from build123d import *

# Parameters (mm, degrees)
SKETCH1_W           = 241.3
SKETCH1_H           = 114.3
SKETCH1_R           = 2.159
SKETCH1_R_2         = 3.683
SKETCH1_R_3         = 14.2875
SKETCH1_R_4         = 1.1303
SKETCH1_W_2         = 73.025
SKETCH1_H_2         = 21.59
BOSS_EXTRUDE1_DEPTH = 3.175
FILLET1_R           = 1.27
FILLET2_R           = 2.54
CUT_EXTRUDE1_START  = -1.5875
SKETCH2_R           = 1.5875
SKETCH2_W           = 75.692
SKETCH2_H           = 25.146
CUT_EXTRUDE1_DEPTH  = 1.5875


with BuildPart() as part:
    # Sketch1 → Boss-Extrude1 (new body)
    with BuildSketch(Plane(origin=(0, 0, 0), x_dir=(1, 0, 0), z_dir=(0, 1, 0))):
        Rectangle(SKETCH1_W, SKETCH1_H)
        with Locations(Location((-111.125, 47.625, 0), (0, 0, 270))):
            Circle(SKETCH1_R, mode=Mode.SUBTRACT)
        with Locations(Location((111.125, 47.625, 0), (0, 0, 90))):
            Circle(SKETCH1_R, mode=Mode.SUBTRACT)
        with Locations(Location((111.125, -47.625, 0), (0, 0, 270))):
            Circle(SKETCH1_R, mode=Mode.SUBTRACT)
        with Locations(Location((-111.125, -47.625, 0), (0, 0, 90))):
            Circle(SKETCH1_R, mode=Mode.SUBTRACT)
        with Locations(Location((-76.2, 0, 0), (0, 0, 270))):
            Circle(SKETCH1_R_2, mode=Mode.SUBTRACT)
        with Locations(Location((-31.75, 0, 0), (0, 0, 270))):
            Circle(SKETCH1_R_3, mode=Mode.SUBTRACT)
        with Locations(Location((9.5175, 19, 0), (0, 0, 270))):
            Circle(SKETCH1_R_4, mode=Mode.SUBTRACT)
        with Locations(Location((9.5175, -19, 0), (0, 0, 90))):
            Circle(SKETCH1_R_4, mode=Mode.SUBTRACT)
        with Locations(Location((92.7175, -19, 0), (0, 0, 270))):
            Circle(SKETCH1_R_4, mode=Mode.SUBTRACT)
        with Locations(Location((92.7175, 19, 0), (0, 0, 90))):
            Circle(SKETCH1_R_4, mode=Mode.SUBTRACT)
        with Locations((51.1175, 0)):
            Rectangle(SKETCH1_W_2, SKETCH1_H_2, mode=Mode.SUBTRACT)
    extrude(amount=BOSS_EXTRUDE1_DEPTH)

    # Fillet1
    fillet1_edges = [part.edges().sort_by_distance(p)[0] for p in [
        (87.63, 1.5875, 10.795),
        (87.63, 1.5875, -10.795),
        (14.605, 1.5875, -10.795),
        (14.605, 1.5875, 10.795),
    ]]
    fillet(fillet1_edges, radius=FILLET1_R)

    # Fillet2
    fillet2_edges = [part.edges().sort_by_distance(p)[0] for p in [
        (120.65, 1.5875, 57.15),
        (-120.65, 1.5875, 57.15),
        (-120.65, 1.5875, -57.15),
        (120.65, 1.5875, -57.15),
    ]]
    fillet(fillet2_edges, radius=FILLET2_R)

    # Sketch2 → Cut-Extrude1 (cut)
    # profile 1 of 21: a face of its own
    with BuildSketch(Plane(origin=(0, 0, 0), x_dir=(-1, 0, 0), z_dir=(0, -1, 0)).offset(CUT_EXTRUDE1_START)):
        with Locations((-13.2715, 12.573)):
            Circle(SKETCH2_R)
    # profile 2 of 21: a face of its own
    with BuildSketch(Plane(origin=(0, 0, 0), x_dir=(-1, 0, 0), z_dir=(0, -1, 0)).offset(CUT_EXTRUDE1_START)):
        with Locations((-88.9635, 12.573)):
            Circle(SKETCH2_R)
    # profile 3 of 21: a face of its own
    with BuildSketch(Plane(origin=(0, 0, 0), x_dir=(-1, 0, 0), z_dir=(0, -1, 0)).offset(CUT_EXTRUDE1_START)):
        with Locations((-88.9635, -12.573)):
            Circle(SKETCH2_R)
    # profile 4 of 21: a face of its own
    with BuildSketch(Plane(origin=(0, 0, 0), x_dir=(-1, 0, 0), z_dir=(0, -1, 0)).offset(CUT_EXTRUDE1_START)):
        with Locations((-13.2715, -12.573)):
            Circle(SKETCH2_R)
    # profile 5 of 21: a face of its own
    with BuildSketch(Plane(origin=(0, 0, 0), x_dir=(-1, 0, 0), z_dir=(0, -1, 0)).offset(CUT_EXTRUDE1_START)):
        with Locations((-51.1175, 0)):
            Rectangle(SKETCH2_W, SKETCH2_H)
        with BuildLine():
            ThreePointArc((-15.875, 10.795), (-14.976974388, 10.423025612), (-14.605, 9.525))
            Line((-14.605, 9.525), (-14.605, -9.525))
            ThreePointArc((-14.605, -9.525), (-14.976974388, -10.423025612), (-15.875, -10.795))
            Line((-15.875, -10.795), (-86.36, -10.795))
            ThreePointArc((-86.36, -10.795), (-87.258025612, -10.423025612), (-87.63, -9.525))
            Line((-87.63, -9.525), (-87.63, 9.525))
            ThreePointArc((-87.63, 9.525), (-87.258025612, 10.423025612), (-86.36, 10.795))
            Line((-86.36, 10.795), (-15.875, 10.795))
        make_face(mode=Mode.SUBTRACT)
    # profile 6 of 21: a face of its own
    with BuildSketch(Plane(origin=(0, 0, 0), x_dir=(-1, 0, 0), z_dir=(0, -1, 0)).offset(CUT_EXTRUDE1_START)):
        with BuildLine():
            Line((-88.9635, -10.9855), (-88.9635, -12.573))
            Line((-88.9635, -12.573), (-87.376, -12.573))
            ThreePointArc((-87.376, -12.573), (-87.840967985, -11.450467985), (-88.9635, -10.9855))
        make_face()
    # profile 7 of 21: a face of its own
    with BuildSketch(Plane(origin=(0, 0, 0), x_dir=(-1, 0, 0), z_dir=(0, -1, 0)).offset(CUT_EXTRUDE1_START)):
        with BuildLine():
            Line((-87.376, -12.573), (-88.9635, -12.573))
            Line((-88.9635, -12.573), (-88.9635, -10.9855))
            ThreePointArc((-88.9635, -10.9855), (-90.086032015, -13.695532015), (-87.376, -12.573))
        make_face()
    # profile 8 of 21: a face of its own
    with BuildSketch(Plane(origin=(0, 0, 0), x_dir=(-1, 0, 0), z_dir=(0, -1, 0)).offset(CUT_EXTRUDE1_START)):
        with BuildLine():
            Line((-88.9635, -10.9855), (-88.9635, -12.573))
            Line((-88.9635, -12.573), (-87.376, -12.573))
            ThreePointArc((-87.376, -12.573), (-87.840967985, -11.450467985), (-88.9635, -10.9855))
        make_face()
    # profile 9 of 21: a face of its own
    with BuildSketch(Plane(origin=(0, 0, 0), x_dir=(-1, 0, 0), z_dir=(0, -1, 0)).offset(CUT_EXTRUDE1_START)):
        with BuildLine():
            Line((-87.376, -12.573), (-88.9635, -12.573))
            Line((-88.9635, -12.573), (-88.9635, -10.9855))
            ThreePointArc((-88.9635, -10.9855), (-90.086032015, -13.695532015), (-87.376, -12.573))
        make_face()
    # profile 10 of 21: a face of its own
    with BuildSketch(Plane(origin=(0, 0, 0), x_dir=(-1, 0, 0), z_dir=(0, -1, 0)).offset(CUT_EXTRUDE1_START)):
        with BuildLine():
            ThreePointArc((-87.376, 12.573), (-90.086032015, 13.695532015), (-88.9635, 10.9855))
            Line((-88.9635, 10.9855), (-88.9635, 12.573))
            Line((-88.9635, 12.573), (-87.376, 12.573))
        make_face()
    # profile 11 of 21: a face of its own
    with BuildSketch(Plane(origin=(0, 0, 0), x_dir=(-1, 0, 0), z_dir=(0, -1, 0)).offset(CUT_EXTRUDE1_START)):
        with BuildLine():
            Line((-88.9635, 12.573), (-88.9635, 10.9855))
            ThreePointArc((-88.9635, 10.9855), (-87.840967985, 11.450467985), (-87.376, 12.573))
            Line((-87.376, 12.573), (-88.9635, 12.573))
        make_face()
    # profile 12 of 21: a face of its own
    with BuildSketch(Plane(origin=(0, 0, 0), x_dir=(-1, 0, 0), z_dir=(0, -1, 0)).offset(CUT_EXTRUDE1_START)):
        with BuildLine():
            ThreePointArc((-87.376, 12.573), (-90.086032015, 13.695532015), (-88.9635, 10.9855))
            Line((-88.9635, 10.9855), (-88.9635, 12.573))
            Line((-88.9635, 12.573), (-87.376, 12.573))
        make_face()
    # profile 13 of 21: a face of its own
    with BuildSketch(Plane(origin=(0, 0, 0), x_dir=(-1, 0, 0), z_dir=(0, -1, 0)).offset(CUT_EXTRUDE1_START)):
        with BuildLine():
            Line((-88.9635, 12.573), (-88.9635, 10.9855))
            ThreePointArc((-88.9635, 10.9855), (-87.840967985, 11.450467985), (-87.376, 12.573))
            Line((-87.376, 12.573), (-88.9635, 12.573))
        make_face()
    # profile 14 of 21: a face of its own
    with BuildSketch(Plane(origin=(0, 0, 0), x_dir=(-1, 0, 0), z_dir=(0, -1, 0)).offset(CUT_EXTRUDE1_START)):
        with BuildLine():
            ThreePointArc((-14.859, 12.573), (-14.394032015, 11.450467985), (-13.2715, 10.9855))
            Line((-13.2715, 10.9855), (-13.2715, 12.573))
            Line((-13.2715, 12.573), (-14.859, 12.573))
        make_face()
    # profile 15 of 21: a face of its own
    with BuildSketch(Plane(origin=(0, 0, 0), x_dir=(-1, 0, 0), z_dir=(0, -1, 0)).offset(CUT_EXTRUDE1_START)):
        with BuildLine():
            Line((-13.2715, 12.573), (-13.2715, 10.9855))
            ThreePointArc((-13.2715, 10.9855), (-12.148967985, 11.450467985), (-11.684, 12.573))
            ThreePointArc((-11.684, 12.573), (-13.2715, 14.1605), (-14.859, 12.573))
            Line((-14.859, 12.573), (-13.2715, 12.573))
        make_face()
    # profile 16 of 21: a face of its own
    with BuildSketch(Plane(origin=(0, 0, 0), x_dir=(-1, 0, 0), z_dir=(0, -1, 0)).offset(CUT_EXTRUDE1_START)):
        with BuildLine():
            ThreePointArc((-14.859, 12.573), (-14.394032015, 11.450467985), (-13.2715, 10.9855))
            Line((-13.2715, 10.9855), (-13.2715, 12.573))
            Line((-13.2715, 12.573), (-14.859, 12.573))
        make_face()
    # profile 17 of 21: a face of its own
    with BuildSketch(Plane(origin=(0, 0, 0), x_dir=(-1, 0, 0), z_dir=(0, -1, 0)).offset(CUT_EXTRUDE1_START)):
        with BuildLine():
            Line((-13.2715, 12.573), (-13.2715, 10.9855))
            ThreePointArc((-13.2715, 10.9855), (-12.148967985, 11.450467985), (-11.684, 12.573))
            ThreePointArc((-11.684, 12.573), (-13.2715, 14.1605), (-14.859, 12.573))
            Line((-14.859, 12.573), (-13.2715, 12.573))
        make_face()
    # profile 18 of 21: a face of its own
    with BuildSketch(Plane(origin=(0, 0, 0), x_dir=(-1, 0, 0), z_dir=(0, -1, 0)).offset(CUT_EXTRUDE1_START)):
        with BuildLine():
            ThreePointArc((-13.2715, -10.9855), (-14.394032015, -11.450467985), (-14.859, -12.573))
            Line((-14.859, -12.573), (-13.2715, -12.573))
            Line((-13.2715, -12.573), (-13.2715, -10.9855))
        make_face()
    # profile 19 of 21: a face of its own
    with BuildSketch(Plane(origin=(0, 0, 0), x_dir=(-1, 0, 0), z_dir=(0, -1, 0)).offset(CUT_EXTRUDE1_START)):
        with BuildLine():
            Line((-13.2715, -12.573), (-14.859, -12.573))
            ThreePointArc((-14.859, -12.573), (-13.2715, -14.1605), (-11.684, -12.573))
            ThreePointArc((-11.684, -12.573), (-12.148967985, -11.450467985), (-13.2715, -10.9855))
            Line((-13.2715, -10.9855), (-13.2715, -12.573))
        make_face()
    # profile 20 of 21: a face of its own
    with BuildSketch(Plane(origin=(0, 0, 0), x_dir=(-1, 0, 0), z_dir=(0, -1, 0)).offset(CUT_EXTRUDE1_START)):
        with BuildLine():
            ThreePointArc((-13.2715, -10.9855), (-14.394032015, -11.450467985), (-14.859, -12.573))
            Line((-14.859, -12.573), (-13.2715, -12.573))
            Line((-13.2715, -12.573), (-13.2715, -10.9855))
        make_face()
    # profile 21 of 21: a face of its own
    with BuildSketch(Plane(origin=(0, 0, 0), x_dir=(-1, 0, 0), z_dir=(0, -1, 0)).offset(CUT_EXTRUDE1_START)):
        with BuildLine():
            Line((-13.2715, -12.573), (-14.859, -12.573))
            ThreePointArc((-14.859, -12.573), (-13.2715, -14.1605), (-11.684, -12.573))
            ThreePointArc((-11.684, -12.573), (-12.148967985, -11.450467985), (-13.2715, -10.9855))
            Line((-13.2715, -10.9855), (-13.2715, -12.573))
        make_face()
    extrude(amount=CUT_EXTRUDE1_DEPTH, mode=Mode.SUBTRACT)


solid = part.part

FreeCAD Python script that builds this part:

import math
import FreeCAD as App
import Part
import Sketcher

V = App.Vector
Q = App.Units.Quantity


def edges_at(feature, points):
    """Names of the edges that pass closest to the given points."""
    edges = feature.Shape.Edges
    near = lambda p: min(range(len(edges)), key=lambda i: edges[i].distToShape(Part.Vertex(*p))[0])
    return sorted({f"Edge{near(p) + 1}" for p in points})


def add_polygon(sketch, points):
    """Adds a closed chain of lines whose ends are joined by coincident constraints."""
    first, n = sketch.GeometryCount, len(points)
    for a, b in zip(points, points[1:] + points[:1]):
        sketch.addGeometry(Part.LineSegment(App.Vector(*a, 0), App.Vector(*b, 0)), False)
    for i in range(n):
        sketch.addConstraint(Sketcher.Constraint("Coincident", first + i, 2, first + (i + 1) % n, 1))

doc = App.newDocument("Part")
body = doc.addObject("PartDesign::Body", "Body")

sketch1 = body.newObject("Sketcher::SketchObject", "Sketch")
sketch1.AttachmentSupport = (doc.getObject("XZ_Plane"), [""])
sketch1.MapMode = "FlatFace"
add_polygon(sketch1, [(-120.7, -57.1), (-120.7, 57.1), (120.7, 57.1), (120.7, -57.1)])
sketch1.addGeometry(Part.Circle(V(-111.1, 47.6, 0), V(0, 0, 1), 2.2), False)
sketch1.addGeometry(Part.Circle(V(111.1, 47.6, 0), V(0, 0, 1), 2.2), False)
sketch1.addGeometry(Part.Circle(V(9.5, 19, 0), V(0, 0, 1), 1.1), False)
sketch1.addGeometry(Part.Circle(V(92.7, 19, 0), V(0, 0, 1), 1.1), False)
sketch1.addGeometry(Part.Circle(V(-76.2, 0, 0), V(0, 0, 1), 3.7), False)
sketch1.addGeometry(Part.Circle(V(-31.8, 0, 0), V(0, 0, 1), 14.3), False)
sketch1.addGeometry(Part.Circle(V(-111.1, -47.6, 0), V(0, 0, 1), 2.2), False)
add_polygon(sketch1, [(87.6, 10.8), (14.6, 10.8), (14.6, -10.8), (87.6, -10.8)])
sketch1.addGeometry(Part.Circle(V(9.5, -19, 0), V(0, 0, 1), 1.1), False)
sketch1.addGeometry(Part.Circle(V(92.7, -19, 0), V(0, 0, 1), 1.1), False)
sketch1.addGeometry(Part.Circle(V(111.1, -47.6, 0), V(0, 0, 1), 2.2), False)
sketch1.addConstraint(Sketcher.Constraint("Vertical", 0))
sketch1.addConstraint(Sketcher.Constraint("Horizontal", 1))
sketch1.addConstraint(Sketcher.Constraint("Vertical", 2))
sketch1.addConstraint(Sketcher.Constraint("Horizontal", 3))
sketch1.addConstraint(Sketcher.Constraint("Horizontal", 11))
sketch1.addConstraint(Sketcher.Constraint("Vertical", 12))
sketch1.addConstraint(Sketcher.Constraint("Horizontal", 13))
sketch1.addConstraint(Sketcher.Constraint("Vertical", 14))
sketch1.addConstraint(Sketcher.Constraint("Equal", 4, 5))
sketch1.addConstraint(Sketcher.Constraint("Equal", 6, 7))
sketch1.addConstraint(Sketcher.Constraint("Equal", 5, 10))
sketch1.addConstraint(Sketcher.Constraint("Equal", 7, 15))
sketch1.addConstraint(Sketcher.Constraint("Equal", 15, 16))
sketch1.addConstraint(Sketcher.Constraint("Equal", 10, 17))
sketch1.addConstraint(Sketcher.Constraint("Symmetric", 5, 3, 10, 3, -1, 1))
sketch1.addConstraint(Sketcher.Constraint("Symmetric", 4, 3, 17, 3, -1, 1))
sketch1.addConstraint(Sketcher.Constraint("Symmetric", 0, 2, 2, 2, -1, 1))
sketch1.addConstraint(Sketcher.Constraint("Symmetric", 4, 3, 5, 3, -2))
sketch1.addConstraint(Sketcher.Constraint("Symmetric", 6, 3, 15, 3, -1))
sketch1.addConstraint(Sketcher.Constraint("Symmetric", 7, 3, 16, 3, -1))
sketch1.addConstraint(Sketcher.Constraint("PointOnObject", 8, 3, -1))
sketch1.addConstraint(Sketcher.Constraint("PointOnObject", 9, 3, -1))
sketch1.addConstraint(Sketcher.Constraint("Horizontal", 6, 3, 7, 3))
sketch1.addConstraint(Sketcher.Constraint("Diameter", 4, Q("0.17 in")))
sketch1.addConstraint(Sketcher.Constraint("Diameter", 8, Q("0.29 in")))
sketch1.addConstraint(Sketcher.Constraint("Diameter", 6, Q("0.089 in")))
sketch1.addConstraint(Sketcher.Constraint("Diameter", 9, Q("1.125 in")))
sketch1.addConstraint(Sketcher.Constraint("DistanceX", 1, 1, 1, 2, Q("9.5 in")))
sketch1.addConstraint(Sketcher.Constraint("DistanceY", 0, 1, 0, 2, Q("4.5 in")))
sketch1.addConstraint(Sketcher.Constraint("DistanceX", 8, 3, -1, 1, Q("3 in")))
sketch1.addConstraint(Sketcher.Constraint("DistanceY", 12, 2, 12, 1, Q("0.85 in")))
sketch1.addConstraint(Sketcher.Constraint("DistanceX", 0, 2, 9, 3, Q("3.5 in")))
sketch1.addConstraint(Sketcher.Constraint("DistanceX", 13, 2, 2, 2, Q("1.3 in")))
sketch1.addConstraint(Sketcher.Constraint("DistanceY", 13, 2, 5, 3, Q("2.3 in")))
sketch1.addConstraint(Sketcher.Constraint("DistanceX", 11, 2, 11, 1, Q("2.875 in")))
sketch1.addConstraint(Sketcher.Constraint("DistanceX", 4, 3, 5, 3, Q("8.75 in")))
sketch1.addConstraint(Sketcher.Constraint("DistanceY", 10, 3, 4, 3, Q("3.75 in")))
sketch1.addConstraint(Sketcher.Constraint("DistanceX", -1, 1, 6, 3, 9.5175))
sketch1.addConstraint(Sketcher.Constraint("DistanceY", -1, 1, 6, 3, 19.0))
sketch1.addConstraint(Sketcher.Constraint("DistanceX", -1, 1, 7, 3, 92.7175))
pad1 = body.newObject("PartDesign::Pad", "Pad")
pad1.Profile = sketch1
pad1.Length = Q("0.125 in")
pad1.Reversed = True
doc.recompute()

fillet = body.newObject("PartDesign::Fillet", "Fillet")
fillet.Base = (pad1, edges_at(pad1, [
    (87.63, 1.587, 10.795),
    (87.63, 1.587, -10.795),
    (14.605, 1.587, -10.795),
    (14.605, 1.587, 10.795),
]))
fillet.Radius = Q("0.05 in")
doc.recompute()

fillet2 = body.newObject("PartDesign::Fillet", "Fillet001")
fillet2.Base = (fillet, edges_at(fillet, [
    (120.65, 1.587, 57.15),
    (-120.65, 1.587, 57.15),
    (-120.65, 1.587, -57.15),
    (120.65, 1.587, -57.15),
]))
fillet2.Radius = Q("0.1 in")

sketch2 = body.newObject("Sketcher::SketchObject", "Sketch001")
sketch2.AttachmentSupport = (doc.getObject("XZ_Plane"), [""])
sketch2.MapMode = "FlatFace"
sketch2.AttachmentOffset = App.Placement(V(0, 0, -0.0625 * 25.4), App.Rotation())
sketch2.addGeometry(Part.ArcOfCircle(Part.Circle(V(13.3, -12.6, 0), V(0, 0, 1), 1.6), math.radians(90), math.radians(360)), False)
sketch2.addGeometry(Part.LineSegment(V(14.9, -12.6, 0), V(87.4, -12.6, 0)), False)
sketch2.addGeometry(Part.ArcOfCircle(Part.Circle(V(89, -12.6, 0), V(0, 0, 1), 1.6), math.radians(180), math.radians(450)), False)
sketch2.addGeometry(Part.LineSegment(V(89, -11, 0), V(89, 11, 0)), False)
sketch2.addGeometry(Part.ArcOfCircle(Part.Circle(V(89, 12.6, 0), V(0, 0, 1), 1.6), math.radians(-90), math.radians(180)), False)
sketch2.addGeometry(Part.LineSegment(V(87.4, 12.6, 0), V(14.9, 12.6, 0)), False)
sketch2.addGeometry(Part.ArcOfCircle(Part.Circle(V(13.3, 12.6, 0), V(0, 0, 1), 1.6), math.radians(0), math.radians(270)), False)
sketch2.addGeometry(Part.LineSegment(V(13.3, 11, 0), V(13.3, -11, 0)), False)
sketch2.addGeometry(Part.LineSegment(V(15.9, 10.8, 0), V(86.4, 10.8, 0)), False)
sketch2.addGeometry(Part.ArcOfCircle(Part.Circle(V(86.4, 9.5, 0), V(0, 0, 1), 1.3), math.radians(0), math.radians(90)), False)
sketch2.addGeometry(Part.LineSegment(V(87.6, 9.5, 0), V(87.6, -9.5, 0)), False)
sketch2.addGeometry(Part.ArcOfCircle(Part.Circle(V(86.4, -9.5, 0), V(0, 0, 1), 1.3), math.radians(-90), math.radians(0)), False)
sketch2.addGeometry(Part.LineSegment(V(86.4, -10.8, 0), V(15.9, -10.8, 0)), False)
sketch2.addGeometry(Part.ArcOfCircle(Part.Circle(V(15.9, -9.5, 0), V(0, 0, 1), 1.3), math.radians(180), math.radians(270)), False)
sketch2.addGeometry(Part.LineSegment(V(14.6, -9.5, 0), V(14.6, 9.5, 0)), False)
sketch2.addGeometry(Part.ArcOfCircle(Part.Circle(V(15.9, 9.5, 0), V(0, 0, 1), 1.3), math.radians(90), math.radians(180)), False)
sketch2.addConstraint(Sketcher.Constraint("Coincident", 0, 2, 1, 1))
sketch2.addConstraint(Sketcher.Constraint("Coincident", 1, 2, 2, 1))
sketch2.addConstraint(Sketcher.Constraint("Coincident", 2, 2, 3, 1))
sketch2.addConstraint(Sketcher.Constraint("Coincident", 3, 2, 4, 1))
sketch2.addConstraint(Sketcher.Constraint("Coincident", 4, 2, 5, 1))
sketch2.addConstraint(Sketcher.Constraint("Coincident", 5, 2, 6, 1))
sketch2.addConstraint(Sketcher.Constraint("Coincident", 6, 2, 7, 1))
sketch2.addConstraint(Sketcher.Constraint("Coincident", 7, 2, 0, 1))
sketch2.addConstraint(Sketcher.Constraint("Tangent", 8, 2, 9, 2))
sketch2.addConstraint(Sketcher.Constraint("Tangent", 9, 1, 10, 1))
sketch2.addConstraint(Sketcher.Constraint("Tangent", 10, 2, 11, 2))
sketch2.addConstraint(Sketcher.Constraint("Tangent", 11, 1, 12, 1))
sketch2.addConstraint(Sketcher.Constraint("Tangent", 12, 2, 13, 2))
sketch2.addConstraint(Sketcher.Constraint("Tangent", 13, 1, 14, 1))
sketch2.addConstraint(Sketcher.Constraint("Tangent", 14, 2, 15, 2))
sketch2.addConstraint(Sketcher.Constraint("Tangent", 15, 1, 8, 1))
sketch2.addConstraint(Sketcher.Constraint("Horizontal", 1))
sketch2.addConstraint(Sketcher.Constraint("Vertical", 3))
sketch2.addConstraint(Sketcher.Constraint("Horizontal", 5))
sketch2.addConstraint(Sketcher.Constraint("Vertical", 7))
sketch2.addConstraint(Sketcher.Constraint("Horizontal", 8))
sketch2.addConstraint(Sketcher.Constraint("Vertical", 10))
sketch2.addConstraint(Sketcher.Constraint("Horizontal", 12))
sketch2.addConstraint(Sketcher.Constraint("Vertical", 14))
sketch2.addConstraint(Sketcher.Constraint("Equal", 0, 2))
sketch2.addConstraint(Sketcher.Constraint("Equal", 2, 4))
sketch2.addConstraint(Sketcher.Constraint("Equal", 4, 6))
sketch2.addConstraint(Sketcher.Constraint("Equal", 9, 11))
sketch2.addConstraint(Sketcher.Constraint("Equal", 11, 13))
sketch2.addConstraint(Sketcher.Constraint("Equal", 13, 15))
sketch2.addConstraint(Sketcher.Constraint("Symmetric", 2, 3, 4, 3, -1))
sketch2.addConstraint(Sketcher.Constraint("Symmetric", 0, 3, 6, 3, -1))
sketch2.addConstraint(Sketcher.Constraint("Horizontal", 0, 3, 2, 3))
sketch2.addConstraint(Sketcher.Constraint("Horizontal", 2, 3, 0, 2))
sketch2.addConstraint(Sketcher.Constraint("Horizontal", 6, 3, 4, 2))
sketch2.addConstraint(Sketcher.Constraint("Vertical", 4, 3, 2, 2))
sketch2.addConstraint(Sketcher.Constraint("Vertical", 0, 3, 6, 2))
sketch2.addConstraint(Sketcher.Constraint("Radius", 9, Q("0.05 in")))
sketch2.addConstraint(Sketcher.Constraint("Radius", 0, Q("0.0625 in")))
sketch2.addConstraint(Sketcher.Constraint("DistanceY", 10, 2, 10, 1, Q("0.75 in")))
sketch2.addConstraint(Sketcher.Constraint("DistanceX", -1, 1, 9, 3, Q("3.4 in")))
sketch2.addConstraint(Sketcher.Constraint("DistanceX", 1, 1, 1, 2, Q("2.855 in")))
sketch2.addConstraint(Sketcher.Constraint("DistanceX", 8, 1, 8, 2, Q("2.775 in")))
sketch2.addConstraint(Sketcher.Constraint("DistanceY", 3, 1, 3, 2, Q("0.865 in")))
sketch2.addConstraint(Sketcher.Constraint("DistanceX", -1, 1, 1, 2, Q("3.44 in")))
sketch2.addConstraint(Sketcher.Constraint("DistanceY", 9, 3, 4, 3, Q("0.12 in")))
pocket1 = body.newObject("PartDesign::Pocket", "Pocket")
pocket1.Profile = sketch2
pocket1.Length = Q("0.0625 in")
pocket1.Reversed = True

doc.recompute()
